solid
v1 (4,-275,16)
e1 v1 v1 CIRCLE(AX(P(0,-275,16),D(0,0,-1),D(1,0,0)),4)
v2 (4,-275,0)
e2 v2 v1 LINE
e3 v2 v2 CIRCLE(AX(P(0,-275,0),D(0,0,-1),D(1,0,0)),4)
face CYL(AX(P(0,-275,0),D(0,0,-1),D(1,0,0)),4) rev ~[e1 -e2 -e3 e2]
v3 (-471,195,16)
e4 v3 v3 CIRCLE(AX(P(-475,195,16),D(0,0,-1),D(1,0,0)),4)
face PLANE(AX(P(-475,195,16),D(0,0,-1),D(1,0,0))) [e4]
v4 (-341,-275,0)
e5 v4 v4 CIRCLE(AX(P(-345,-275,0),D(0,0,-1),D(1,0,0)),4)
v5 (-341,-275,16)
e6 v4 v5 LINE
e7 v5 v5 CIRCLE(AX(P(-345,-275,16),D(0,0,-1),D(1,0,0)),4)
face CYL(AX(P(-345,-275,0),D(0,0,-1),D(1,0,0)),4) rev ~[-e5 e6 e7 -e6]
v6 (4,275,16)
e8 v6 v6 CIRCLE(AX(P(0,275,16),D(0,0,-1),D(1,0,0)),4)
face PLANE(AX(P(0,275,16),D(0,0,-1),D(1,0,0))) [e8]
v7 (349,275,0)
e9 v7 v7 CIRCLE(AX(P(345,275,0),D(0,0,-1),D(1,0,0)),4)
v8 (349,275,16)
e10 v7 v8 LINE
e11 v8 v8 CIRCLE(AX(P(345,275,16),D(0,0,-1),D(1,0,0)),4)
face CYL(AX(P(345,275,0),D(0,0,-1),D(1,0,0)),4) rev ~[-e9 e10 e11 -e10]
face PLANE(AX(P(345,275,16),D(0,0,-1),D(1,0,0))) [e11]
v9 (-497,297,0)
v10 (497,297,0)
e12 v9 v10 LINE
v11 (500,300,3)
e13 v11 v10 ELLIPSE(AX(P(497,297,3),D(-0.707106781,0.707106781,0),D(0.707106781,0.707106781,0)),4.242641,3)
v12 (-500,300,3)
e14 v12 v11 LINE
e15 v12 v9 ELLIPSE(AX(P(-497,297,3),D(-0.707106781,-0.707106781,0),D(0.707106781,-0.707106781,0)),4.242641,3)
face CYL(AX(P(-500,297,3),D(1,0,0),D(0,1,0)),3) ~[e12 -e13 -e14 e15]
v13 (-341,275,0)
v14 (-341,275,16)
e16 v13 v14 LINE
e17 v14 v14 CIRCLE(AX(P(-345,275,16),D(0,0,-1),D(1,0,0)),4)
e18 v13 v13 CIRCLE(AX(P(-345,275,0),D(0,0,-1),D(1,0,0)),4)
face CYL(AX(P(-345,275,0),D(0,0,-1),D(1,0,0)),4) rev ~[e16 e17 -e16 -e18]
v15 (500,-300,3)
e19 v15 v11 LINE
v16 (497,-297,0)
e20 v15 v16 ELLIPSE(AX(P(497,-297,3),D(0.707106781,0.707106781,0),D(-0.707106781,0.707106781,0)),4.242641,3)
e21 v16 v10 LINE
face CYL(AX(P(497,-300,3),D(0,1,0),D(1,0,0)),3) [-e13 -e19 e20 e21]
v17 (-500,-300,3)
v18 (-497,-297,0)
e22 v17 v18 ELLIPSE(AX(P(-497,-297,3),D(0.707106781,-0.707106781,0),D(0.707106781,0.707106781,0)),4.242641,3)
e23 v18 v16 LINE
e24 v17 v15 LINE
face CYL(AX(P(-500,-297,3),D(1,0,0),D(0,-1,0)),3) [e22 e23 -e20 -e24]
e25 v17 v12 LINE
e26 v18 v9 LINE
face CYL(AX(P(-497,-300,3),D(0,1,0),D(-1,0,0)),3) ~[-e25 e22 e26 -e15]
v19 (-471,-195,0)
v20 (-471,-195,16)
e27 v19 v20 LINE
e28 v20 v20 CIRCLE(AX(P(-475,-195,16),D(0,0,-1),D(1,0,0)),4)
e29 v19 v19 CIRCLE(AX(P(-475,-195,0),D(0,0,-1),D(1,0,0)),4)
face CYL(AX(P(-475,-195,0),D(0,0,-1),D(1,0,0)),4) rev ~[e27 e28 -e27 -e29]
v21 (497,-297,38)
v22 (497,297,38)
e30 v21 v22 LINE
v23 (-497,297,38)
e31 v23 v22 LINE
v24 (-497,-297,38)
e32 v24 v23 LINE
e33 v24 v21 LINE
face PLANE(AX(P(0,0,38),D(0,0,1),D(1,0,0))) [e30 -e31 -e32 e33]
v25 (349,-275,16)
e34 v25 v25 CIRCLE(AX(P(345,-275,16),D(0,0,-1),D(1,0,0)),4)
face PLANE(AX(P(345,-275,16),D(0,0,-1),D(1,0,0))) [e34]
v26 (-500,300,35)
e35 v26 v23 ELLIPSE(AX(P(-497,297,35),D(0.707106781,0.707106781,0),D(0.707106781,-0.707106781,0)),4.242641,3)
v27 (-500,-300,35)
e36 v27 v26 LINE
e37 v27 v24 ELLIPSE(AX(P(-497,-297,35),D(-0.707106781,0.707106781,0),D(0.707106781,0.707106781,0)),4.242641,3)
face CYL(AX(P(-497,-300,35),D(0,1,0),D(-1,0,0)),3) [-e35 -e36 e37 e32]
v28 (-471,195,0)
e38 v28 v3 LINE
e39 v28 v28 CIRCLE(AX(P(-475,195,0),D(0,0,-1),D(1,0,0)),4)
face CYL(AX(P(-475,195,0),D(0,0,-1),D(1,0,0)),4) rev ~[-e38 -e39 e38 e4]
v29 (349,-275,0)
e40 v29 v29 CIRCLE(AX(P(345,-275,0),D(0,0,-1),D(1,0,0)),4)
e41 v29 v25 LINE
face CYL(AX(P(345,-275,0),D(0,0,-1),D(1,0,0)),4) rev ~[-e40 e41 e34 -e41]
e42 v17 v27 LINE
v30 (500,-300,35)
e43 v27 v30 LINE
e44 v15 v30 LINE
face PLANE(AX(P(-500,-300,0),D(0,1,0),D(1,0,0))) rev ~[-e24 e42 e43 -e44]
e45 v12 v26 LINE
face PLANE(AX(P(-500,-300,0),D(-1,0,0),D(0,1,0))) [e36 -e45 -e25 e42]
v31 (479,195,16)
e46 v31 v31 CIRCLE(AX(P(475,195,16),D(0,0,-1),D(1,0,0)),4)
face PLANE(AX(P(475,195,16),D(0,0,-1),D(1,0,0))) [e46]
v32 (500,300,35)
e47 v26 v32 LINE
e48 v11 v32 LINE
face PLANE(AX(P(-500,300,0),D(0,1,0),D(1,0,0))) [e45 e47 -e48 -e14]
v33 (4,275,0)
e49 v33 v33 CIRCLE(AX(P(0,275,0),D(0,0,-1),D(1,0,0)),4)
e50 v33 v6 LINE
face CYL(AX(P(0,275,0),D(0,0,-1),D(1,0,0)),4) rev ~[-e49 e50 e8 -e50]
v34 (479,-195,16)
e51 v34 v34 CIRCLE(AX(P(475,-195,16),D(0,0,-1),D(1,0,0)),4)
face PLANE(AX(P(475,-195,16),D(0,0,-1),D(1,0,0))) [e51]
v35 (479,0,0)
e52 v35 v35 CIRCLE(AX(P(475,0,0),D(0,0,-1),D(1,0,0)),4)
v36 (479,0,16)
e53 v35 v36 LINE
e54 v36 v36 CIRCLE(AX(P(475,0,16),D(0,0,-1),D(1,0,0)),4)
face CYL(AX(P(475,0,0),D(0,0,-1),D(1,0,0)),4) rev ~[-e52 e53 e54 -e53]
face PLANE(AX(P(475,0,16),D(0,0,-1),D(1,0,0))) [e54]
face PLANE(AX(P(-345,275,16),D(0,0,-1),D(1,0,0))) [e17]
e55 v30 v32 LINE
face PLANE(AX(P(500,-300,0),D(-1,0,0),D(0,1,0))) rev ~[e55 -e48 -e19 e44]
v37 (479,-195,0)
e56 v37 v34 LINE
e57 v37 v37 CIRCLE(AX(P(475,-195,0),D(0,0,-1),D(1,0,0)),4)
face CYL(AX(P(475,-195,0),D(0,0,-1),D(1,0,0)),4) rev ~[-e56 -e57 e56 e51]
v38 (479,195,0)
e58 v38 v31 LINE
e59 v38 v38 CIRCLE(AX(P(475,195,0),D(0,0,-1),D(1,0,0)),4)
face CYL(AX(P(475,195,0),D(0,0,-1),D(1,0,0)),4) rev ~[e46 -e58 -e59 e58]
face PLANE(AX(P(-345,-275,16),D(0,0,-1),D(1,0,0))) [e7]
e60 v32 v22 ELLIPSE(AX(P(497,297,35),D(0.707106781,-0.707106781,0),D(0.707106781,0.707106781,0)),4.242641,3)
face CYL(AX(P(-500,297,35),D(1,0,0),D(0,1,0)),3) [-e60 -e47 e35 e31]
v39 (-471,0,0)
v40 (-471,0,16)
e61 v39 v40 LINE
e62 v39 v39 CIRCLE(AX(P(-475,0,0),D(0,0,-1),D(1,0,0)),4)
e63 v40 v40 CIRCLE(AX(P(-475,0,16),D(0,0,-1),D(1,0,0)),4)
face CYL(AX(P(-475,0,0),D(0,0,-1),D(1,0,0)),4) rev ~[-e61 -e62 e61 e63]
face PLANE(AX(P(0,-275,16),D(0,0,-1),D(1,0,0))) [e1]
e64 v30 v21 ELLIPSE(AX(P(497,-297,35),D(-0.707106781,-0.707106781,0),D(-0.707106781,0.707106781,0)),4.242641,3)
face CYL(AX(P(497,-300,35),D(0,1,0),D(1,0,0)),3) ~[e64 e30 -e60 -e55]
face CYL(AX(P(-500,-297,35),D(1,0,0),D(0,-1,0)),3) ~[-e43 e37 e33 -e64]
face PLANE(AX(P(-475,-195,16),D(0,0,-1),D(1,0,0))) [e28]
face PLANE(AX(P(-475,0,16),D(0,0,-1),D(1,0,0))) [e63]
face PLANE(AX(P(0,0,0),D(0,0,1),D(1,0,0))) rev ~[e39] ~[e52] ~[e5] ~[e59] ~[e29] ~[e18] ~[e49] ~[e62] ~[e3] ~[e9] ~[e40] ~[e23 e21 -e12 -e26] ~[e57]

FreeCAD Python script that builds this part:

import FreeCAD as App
import Part
import Sketcher
from FreeCAD import Vector


def edges_at(feature, points):
    """Names of the edges that pass closest to the given points."""
    edges = feature.Shape.Edges
    near = lambda p: min(range(len(edges)), key=lambda i: edges[i].distToShape(Part.Vertex(*p))[0])
    return sorted({f"Edge{near(p) + 1}" for p in points})


def add_polygon(sketch, points):
    """Adds a closed chain of lines whose ends are joined by coincident constraints."""
    first, n = sketch.GeometryCount, len(points)
    for a, b in zip(points, points[1:] + points[:1]):
        sketch.addGeometry(Part.LineSegment(App.Vector(*a, 0), App.Vector(*b, 0)), False)
    for i in range(n):
        sketch.addConstraint(Sketcher.Constraint("Coincident", first + i, 2, first + (i + 1) % n, 1))

doc = App.newDocument("Part")
body = doc.addObject("PartDesign::Body", "Body")

# Sketch on XY plane
sketch1 = body.newObject("Sketcher::SketchObject", "Sketch")
sketch1.AttachmentSupport = (doc.getObject("XY_Plane"), [""])
sketch1.MapMode = "FlatFace"
add_polygon(sketch1, [(-500, 300), (-500, -300), (500, -300), (500, 300)])  # lines 0-3
sketch1.addConstraint([
    Sketcher.Constraint("Vertical", 0),
    Sketcher.Constraint("Horizontal", 1),
    Sketcher.Constraint("Vertical", 2),
    Sketcher.Constraint("Horizontal", 3),
    Sketcher.Constraint("Symmetric", 0, 2, 2, 2, -1, 1),
    Sketcher.Constraint("DistanceX", 1, 1, 1, 2, 1000.0),
    Sketcher.Constraint("DistanceY", 0, 2, 0, 1, 600.0),
])
pad1 = body.newObject("PartDesign::Pad", "Pad")
pad1.Profile = sketch1
pad1.Length = 38
doc.recompute()

fillet = body.newObject("PartDesign::Fillet", "Fillet")
fillet.Base = (pad1, edges_at(pad1, [
    (0, 300, 38),
    (500, 0, 38),
    (0, -300, 38),
    (-500, 0, 38),
    (500, 0, 0),
    (0, 300, 0),
    (-500, 0, 0),
    (0, -300, 0),
]))
fillet.Radius = 3

# Sketch on XY plane
sketch2 = body.newObject("Sketcher::SketchObject", "Sketch001")
sketch2.AttachmentSupport = (doc.getObject("XY_Plane"), [""])
sketch2.MapMode = "FlatFace"
sketch2.addGeometry([
    Part.Circle(Vector(-345, -275, 0), Vector(0, 0, 1), 4),  # 0
    Part.Circle(Vector(0, -275, 0), Vector(0, 0, 1), 4),  # 1
    Part.Circle(Vector(345, -275, 0), Vector(0, 0, 1), 4),  # 2
    Part.Circle(Vector(345, 275, 0), Vector(0, 0, 1), 4),  # 3
    Part.Circle(Vector(0, 275, 0), Vector(0, 0, 1), 4),  # 4
    Part.Circle(Vector(-345, 275, 0), Vector(0, 0, 1), 4),  # 5
    Part.Circle(Vector(-475, 0, 0), Vector(0, 0, 1), 4),  # 6
    Part.Circle(Vector(-475, 195, 0), Vector(0, 0, 1), 4),  # 7
    Part.Circle(Vector(-475, -195, 0), Vector(0, 0, 1), 4),  # 8
    Part.Circle(Vector(475, -195, 0), Vector(0, 0, 1), 4),  # 9
    Part.Circle(Vector(475, 0, 0), Vector(0, 0, 1), 4),  # 10
    Part.Circle(Vector(475, 195, 0), Vector(0, 0, 1), 4),  # 11
], False)
sketch2.addConstraint([
    Sketcher.Constraint("Equal", 0, 1),
    Sketcher.Constraint("Equal", 1, 2),
    Sketcher.Constraint("Equal", 2, 3),
    Sketcher.Constraint("Equal", 3, 4),
    Sketcher.Constraint("Equal", 4, 5),
    Sketcher.Constraint("Equal", 5, 6),
    Sketcher.Constraint("Equal", 6, 7),
    Sketcher.Constraint("Equal", 7, 8),
    Sketcher.Constraint("Equal", 8, 9),
    Sketcher.Constraint("Equal", 9, 10),
    Sketcher.Constraint("Equal", 10, 11),
    Sketcher.Constraint("Symmetric", 0, 3, 3, 3, -1, 1),
    Sketcher.Constraint("Symmetric", 1, 3, 4, 3, -1, 1),
    Sketcher.Constraint("Symmetric", 2, 3, 5, 3, -1, 1),
    Sketcher.Constraint("Symmetric", 7, 3, 9, 3, -1, 1),
    Sketcher.Constraint("Symmetric", 6, 3, 10, 3, -1, 1),
    Sketcher.Constraint("Symmetric", 8, 3, 11, 3, -1, 1),
    Sketcher.Constraint("Symmetric", 0, 3, 2, 3, -2),
    Sketcher.Constraint("Symmetric", 8, 3, 9, 3, -2),
    Sketcher.Constraint("PointOnObject", 1, 3, -2),
    Sketcher.Constraint("PointOnObject", 6, 3, -1),
    Sketcher.Constraint("Horizontal", 0, 3, 1, 3),
    Sketcher.Constraint("Vertical", 6, 3, 7, 3),
    Sketcher.Constraint("Diameter", 0, 8.0),
    Sketcher.Constraint("DistanceX", 0, 3, -1, 1, 345.0),
    Sketcher.Constraint("DistanceY", 0, 3, -1, 1, 275.0),
    Sketcher.Constraint("DistanceX", 6, 3, -1, 1, 475.0),
    Sketcher.Constraint("DistanceY", -1, 1, 7, 3, 195.0),
])
pocket1 = body.newObject("PartDesign::Pocket", "Pocket")
pocket1.Profile = sketch2
pocket1.Length = 16
pocket1.Reversed = True

doc.recompute()
